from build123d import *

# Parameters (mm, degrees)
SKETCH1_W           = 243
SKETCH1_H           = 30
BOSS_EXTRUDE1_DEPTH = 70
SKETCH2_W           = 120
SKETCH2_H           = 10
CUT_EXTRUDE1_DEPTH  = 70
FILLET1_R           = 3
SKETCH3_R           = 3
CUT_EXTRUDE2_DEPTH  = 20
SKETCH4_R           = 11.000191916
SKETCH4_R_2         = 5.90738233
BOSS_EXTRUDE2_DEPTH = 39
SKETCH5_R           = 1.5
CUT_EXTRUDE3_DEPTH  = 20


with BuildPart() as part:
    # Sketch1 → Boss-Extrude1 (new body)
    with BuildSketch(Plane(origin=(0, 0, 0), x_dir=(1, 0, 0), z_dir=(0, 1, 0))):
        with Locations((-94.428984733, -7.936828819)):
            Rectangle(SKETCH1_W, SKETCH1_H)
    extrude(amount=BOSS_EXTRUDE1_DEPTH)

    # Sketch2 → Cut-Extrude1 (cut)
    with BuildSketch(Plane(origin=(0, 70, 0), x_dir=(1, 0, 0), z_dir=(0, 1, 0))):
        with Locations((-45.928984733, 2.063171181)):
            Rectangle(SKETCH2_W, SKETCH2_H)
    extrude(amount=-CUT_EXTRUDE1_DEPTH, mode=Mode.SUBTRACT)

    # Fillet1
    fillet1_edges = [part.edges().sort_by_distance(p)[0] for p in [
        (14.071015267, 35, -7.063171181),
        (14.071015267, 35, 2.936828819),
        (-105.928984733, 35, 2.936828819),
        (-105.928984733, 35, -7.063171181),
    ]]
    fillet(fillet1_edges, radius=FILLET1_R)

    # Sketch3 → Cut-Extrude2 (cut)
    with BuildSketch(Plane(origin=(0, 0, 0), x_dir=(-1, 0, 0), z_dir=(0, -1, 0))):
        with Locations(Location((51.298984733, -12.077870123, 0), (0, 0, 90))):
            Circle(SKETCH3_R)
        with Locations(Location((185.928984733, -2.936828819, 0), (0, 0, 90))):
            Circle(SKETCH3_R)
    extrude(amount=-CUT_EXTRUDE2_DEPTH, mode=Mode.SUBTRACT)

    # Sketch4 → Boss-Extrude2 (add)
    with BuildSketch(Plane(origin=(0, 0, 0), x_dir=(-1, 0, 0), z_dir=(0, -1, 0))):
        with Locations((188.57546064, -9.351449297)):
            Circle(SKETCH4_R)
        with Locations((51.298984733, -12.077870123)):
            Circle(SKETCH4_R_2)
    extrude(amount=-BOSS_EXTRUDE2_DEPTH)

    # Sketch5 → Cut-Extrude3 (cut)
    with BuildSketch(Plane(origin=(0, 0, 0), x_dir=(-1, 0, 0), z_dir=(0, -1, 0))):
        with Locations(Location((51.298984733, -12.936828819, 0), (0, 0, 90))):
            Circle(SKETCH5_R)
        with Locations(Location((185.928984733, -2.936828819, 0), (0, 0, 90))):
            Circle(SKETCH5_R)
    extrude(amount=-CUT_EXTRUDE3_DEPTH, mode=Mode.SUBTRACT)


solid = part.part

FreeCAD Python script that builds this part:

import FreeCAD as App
import Part
import Sketcher
Q = App.Units.Quantity


def edges_at(feature, points):
    """Names of the edges that pass closest to the given points."""
    edges = feature.Shape.Edges
    near = lambda p: min(range(len(edges)), key=lambda i: edges[i].distToShape(Part.Vertex(*p))[0])
    return sorted({f"Edge{near(p) + 1}" for p in points})


def add_polygon(sketch, points):
    """Adds a closed chain of lines whose ends are joined by coincident constraints."""
    first, n = sketch.GeometryCount, len(points)
    for a, b in zip(points, points[1:] + points[:1]):
        sketch.addGeometry(Part.LineSegment(App.Vector(*a, 0), App.Vector(*b, 0)), False)
    for i in range(n):
        sketch.addConstraint(Sketcher.Constraint("Coincident", first + i, 2, first + (i + 1) % n, 1))

doc = App.newDocument("Part")
body = doc.addObject("PartDesign::Body", "Body")

# Sketch on XZ plane
sketch1 = doc.addObject("Sketcher::SketchObject", "Sketch")
body.addObject(sketch1)
sketch1.AttachmentSupport = (doc.XZ_Plane, [""])
sketch1.MapMode = "FlatFace"
add_polygon(sketch1, [(-216, -7), (-216, 23), (27, 23), (27, -7)])  # lines 0-3
sketch1.addConstraint(Sketcher.Constraint("Vertical", 0))
sketch1.addConstraint(Sketcher.Constraint("Horizontal", 1))
sketch1.addConstraint(Sketcher.Constraint("Vertical", 2))
sketch1.addConstraint(Sketcher.Constraint("Horizontal", 3))
sketch1.addConstraint(Sketcher.Constraint("DistanceX", 1, 1, 1, 2, Q("243 mm")))
sketch1.addConstraint(Sketcher.Constraint("DistanceY", 0, 1, 0, 2, Q("30 mm")))
sketch1.addConstraint(Sketcher.Constraint("DistanceY", -1, 1, 0, 2, Q("22.936829 mm")))
sketch1.addConstraint(Sketcher.Constraint("DistanceX", 0, 2, -1, 1, Q("215.928985 mm")))
pad1 = doc.addObject("PartDesign::Pad", "Pad")
body.addObject(pad1)
pad1.Profile = sketch1
pad1.Length = 70
pad1.Reversed = True

# Sketch on XZ plane
sketch2 = doc.addObject("Sketcher::SketchObject", "Sketch001")
body.addObject(sketch2)
sketch2.AttachmentSupport = (doc.XZ_Plane, [""])
sketch2.MapMode = "FlatFace"
sketch2.AttachmentOffset = App.Placement(App.Vector(0, 0, -70), App.Rotation())
add_polygon(sketch2, [(-106, -7), (-106, 3), (14, 3), (14, -7)])  # lines 0-3
sketch2.addConstraint(Sketcher.Constraint("Vertical", 0))
sketch2.addConstraint(Sketcher.Constraint("Horizontal", 1))
sketch2.addConstraint(Sketcher.Constraint("Vertical", 2))
sketch2.addConstraint(Sketcher.Constraint("Horizontal", 3))
sketch2.addConstraint(Sketcher.Constraint("DistanceX", 1, 1, 1, 2, Q("120 mm")))
sketch2.addConstraint(Sketcher.Constraint("DistanceY", 0, 1, 0, 2, Q("10 mm")))
sketch2.addConstraint(Sketcher.Constraint("DistanceY", -1, 1, 0, 2, Q("2.936829 mm")))
sketch2.addConstraint(Sketcher.Constraint("DistanceX", 0, 2, -1, 1, Q("105.928985 mm")))
pocket1 = doc.addObject("PartDesign::Pocket", "Pocket")
body.addObject(pocket1)
pocket1.Profile = sketch2
pocket1.Length = 70
pocket1.Reversed = True
doc.recompute()

fillet = doc.addObject("PartDesign::Fillet", "Fillet")
body.addObject(fillet)
fillet.Base = (pocket1, edges_at(pocket1, [
    (14.071, 35, -7.063),
    (14.071, 35, 2.937),
    (-105.929, 35, 2.937),
    (-105.929, 35, -7.063),
]))
fillet.Radius = 3

# Sketch on XZ plane
sketch3 = doc.addObject("Sketcher::SketchObject", "Sketch002")
body.addObject(sketch3)
sketch3.AttachmentSupport = (doc.XZ_Plane, [""])
sketch3.MapMode = "FlatFace"
sketch3.addGeometry(Part.Circle(App.Vector(-51.3, 12.1, 0), App.Vector(0, 0, 1), 3), False)
sketch3.addGeometry(Part.Circle(App.Vector(-185.9, 2.9, 0), App.Vector(0, 0, 1), 3), False)
sketch3.addConstraint(Sketcher.Constraint("Equal", 0, 1))
sketch3.addConstraint(Sketcher.Constraint("Diameter", 0, Q("6 mm")))
sketch3.addConstraint(Sketcher.Constraint("DistanceX", 1, 3, 0, 3, Q("134.63 mm")))
sketch3.addConstraint(Sketcher.Constraint("DistanceY", -1, 1, 0, 3, Q("12.07787 mm")))
sketch3.addConstraint(Sketcher.Constraint("DistanceY", -1, 1, 1, 3, Q("2.936829 mm")))
sketch3.addConstraint(Sketcher.Constraint("DistanceX", 0, 3, -1, 1, Q("51.298985 mm")))
pocket2 = doc.addObject("PartDesign::Pocket", "Pocket001")
body.addObject(pocket2)
pocket2.Profile = sketch3
pocket2.Length = 20

# Sketch on XZ plane
sketch4 = doc.addObject("Sketcher::SketchObject", "Sketch003")
body.addObject(sketch4)
sketch4.AttachmentSupport = (doc.XZ_Plane, [""])
sketch4.MapMode = "FlatFace"
sketch4.addGeometry(Part.Circle(App.Vector(-189, 9, 0), App.Vector(0, 0, 1), 11), False)
sketch4.addGeometry(Part.Circle(App.Vector(-51, 12, 0), App.Vector(0, 0, 1), 6), False)
sketch4.addConstraint(Sketcher.Constraint("Diameter", 0, Q("22.000384 mm")))
sketch4.addConstraint(Sketcher.Constraint("Diameter", 1, Q("11.814765 mm")))
sketch4.addConstraint(Sketcher.Constraint("DistanceX", 0, 3, -1, 1, Q("188.575461 mm")))
sketch4.addConstraint(Sketcher.Constraint("DistanceY", -1, 1, 0, 3, Q("9.351449 mm")))
sketch4.addConstraint(Sketcher.Constraint("DistanceY", -1, 1, 1, 3, Q("12.07787 mm")))
sketch4.addConstraint(Sketcher.Constraint("DistanceX", 1, 3, -1, 1, Q("51.298985 mm")))
pad2 = doc.addObject("PartDesign::Pad", "Pad001")
body.addObject(pad2)
pad2.Profile = sketch4
pad2.Length = 39
pad2.Reversed = True

# Sketch on XZ plane
sketch5 = doc.addObject("Sketcher::SketchObject", "Sketch004")
body.addObject(sketch5)
sketch5.AttachmentSupport = (doc.XZ_Plane, [""])
sketch5.MapMode = "FlatFace"
sketch5.addGeometry(Part.Circle(App.Vector(-51.3, 12.9, 0), App.Vector(0, 0, 1), 1.5), False)
sketch5.addGeometry(Part.Circle(App.Vector(-185.9, 2.9, 0), App.Vector(0, 0, 1), 1.5), False)
sketch5.addConstraint(Sketcher.Constraint("Equal", 0, 1))
sketch5.addConstraint(Sketcher.Constraint("Diameter", 0, Q("3 mm")))
sketch5.addConstraint(Sketcher.Constraint("DistanceY", 1, 3, 0, 3, Q("10 mm")))
sketch5.addConstraint(Sketcher.Constraint("DistanceX", 1, 3, 0, 3, Q("134.63 mm")))
sketch5.addConstraint(Sketcher.Constraint("DistanceY", -1, 1, 0, 3, Q("12.936829 mm")))
sketch5.addConstraint(Sketcher.Constraint("DistanceX", 0, 3, -1, 1, Q("51.298985 mm")))
pocket3 = doc.addObject("PartDesign::Pocket", "Pocket002")
body.addObject(pocket3)
pocket3.Profile = sketch5
pocket3.Length = 20

doc.recompute()
